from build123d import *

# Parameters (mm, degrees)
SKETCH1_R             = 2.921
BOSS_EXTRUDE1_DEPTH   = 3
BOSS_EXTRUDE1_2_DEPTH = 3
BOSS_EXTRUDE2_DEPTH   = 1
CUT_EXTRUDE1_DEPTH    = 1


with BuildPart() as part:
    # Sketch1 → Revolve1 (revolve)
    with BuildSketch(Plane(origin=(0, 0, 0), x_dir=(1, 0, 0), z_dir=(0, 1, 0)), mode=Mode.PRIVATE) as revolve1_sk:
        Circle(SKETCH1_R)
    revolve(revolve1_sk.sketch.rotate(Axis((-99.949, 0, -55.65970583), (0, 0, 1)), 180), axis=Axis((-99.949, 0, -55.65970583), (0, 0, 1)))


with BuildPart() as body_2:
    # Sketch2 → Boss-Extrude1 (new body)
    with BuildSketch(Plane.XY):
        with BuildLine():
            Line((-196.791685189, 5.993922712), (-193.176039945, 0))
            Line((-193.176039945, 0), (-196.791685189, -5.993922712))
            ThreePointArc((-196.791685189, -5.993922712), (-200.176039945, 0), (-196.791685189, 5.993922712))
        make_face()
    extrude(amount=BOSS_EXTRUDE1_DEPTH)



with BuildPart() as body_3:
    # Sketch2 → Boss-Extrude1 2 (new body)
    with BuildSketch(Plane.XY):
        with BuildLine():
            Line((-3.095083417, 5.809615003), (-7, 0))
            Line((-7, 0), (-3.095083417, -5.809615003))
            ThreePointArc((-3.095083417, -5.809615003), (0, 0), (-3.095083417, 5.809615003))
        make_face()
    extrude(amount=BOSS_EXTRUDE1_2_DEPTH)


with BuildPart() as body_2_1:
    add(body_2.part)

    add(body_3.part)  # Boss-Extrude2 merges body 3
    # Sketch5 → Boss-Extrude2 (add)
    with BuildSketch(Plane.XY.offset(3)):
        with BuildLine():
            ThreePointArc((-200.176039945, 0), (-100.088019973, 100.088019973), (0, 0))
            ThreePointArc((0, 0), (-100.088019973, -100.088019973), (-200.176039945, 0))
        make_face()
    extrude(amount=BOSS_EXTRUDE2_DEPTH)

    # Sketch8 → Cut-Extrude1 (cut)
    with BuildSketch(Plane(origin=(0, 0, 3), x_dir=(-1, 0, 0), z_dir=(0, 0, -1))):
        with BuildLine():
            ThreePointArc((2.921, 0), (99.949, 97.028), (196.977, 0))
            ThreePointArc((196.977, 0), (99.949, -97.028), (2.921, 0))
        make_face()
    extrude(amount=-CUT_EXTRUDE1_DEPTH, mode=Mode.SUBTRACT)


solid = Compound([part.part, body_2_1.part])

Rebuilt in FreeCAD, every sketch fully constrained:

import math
import FreeCAD as App
import Part
import Sketcher
Q = App.Units.Quantity

doc = App.newDocument("Part")
body = doc.addObject("PartDesign::Body", "Body")

# Sketch on XZ plane
sketch1 = doc.addObject("Sketcher::SketchObject", "Sketch")
body.addObject(sketch1)
sketch1.AttachmentSupport = (doc.XZ_Plane, [""])
sketch1.MapMode = "FlatFace"
sketch1.addGeometry(Part.Circle(App.Vector(0, 0, 0), App.Vector(0, 0, 1), 2.9), False)
sketch1.addGeometry(Part.LineSegment(App.Vector(-99.9, 0, 0), App.Vector(-99.9, 10, 0)), True)  # axis
sketch1.addConstraint([
    Sketcher.Constraint("Vertical", 1),
    Sketcher.Constraint("Coincident", 0, 3, -1, 1),
    Sketcher.Constraint("PointOnObject", 1, 1, -1),
    Sketcher.Constraint("DistanceY", 1, 1, 1, 2, Q("10 mm")),
    Sketcher.Constraint("Diameter", 0, Q("5.842 mm")),
    Sketcher.Constraint("DistanceX", 1, 1, -1, 1, Q("99.949 mm")),
])
revolution = doc.addObject("PartDesign::Revolution", "Revolution")
body.addObject(revolution)
revolution.Profile = sketch1
revolution.ReferenceAxis = (sketch1, ["Axis0"])
revolution.Angle = 360
body2 = doc.addObject("PartDesign::Body", "Body001")

# Sketch on XY plane
sketch2 = doc.addObject("Sketcher::SketchObject", "Sketch001")
body2.addObject(sketch2)
sketch2.AttachmentSupport = (doc.getObject("XY_Plane001"), [""])
sketch2.MapMode = "FlatFace"
sketch2.addGeometry([
    Part.LineSegment(App.Vector(-193, 0, 0), App.Vector(-197, 6, 0)),
    Part.ArcOfCircle(Part.Circle(App.Vector(-193, 0, 0), App.Vector(0, 0, 1), 7), math.radians(121), math.radians(239)),
    Part.LineSegment(App.Vector(-197, -6, 0), App.Vector(-193, 0, 0)),
], False)
sketch2.addConstraint([
    Sketcher.Constraint("Coincident", 0, 2, 1, 1),
    Sketcher.Constraint("Coincident", 1, 2, 2, 1),
    Sketcher.Constraint("Coincident", 2, 2, 0, 1),
    Sketcher.Constraint("Coincident", 2, 2, 1, 3),
    Sketcher.Constraint("Symmetric", 0, 2, 1, 2, -1),
    Sketcher.Constraint("Radius", 1, Q("7 mm")),
    Sketcher.Constraint("DistanceX", 1, 3, -1, 1, Q("193.17604 mm")),
    Sketcher.Constraint("DistanceX", 0, 2, -1, 1, Q("196.791685 mm")),
])
pad1 = doc.addObject("PartDesign::Pad", "Pad")
body2.addObject(pad1)
pad1.Profile = sketch2
pad1.Length = 3
body3 = doc.addObject("PartDesign::Body", "Body002")

# Sketch on XY plane
sketch3 = doc.addObject("Sketcher::SketchObject", "Sketch002")
body3.addObject(sketch3)
sketch3.AttachmentSupport = (doc.getObject("XY_Plane002"), [""])
sketch3.MapMode = "FlatFace"
sketch3.addGeometry([
    Part.LineSegment(App.Vector(-3, 6, 0), App.Vector(-7, 0, 0)),
    Part.LineSegment(App.Vector(-7, 0, 0), App.Vector(-3, -6, 0)),
    Part.ArcOfCircle(Part.Circle(App.Vector(-7, 0, 0), App.Vector(0, 0, 1), 7), math.radians(-56), math.radians(56)),
], False)
sketch3.addConstraint([
    Sketcher.Constraint("Coincident", 0, 2, 1, 1),
    Sketcher.Constraint("Coincident", 1, 2, 2, 1),
    Sketcher.Constraint("Coincident", 2, 2, 0, 1),
    Sketcher.Constraint("Coincident", 0, 2, 2, 3),
    Sketcher.Constraint("Symmetric", 1, 2, 2, 2, -1),
    Sketcher.Constraint("Radius", 2, Q("7 mm")),
    Sketcher.Constraint("DistanceX", 2, 3, -1, 1, Q("7 mm")),
    Sketcher.Constraint("DistanceY", 1, 2, 2, 2, Q("11.61923 mm")),
])
pad2 = doc.addObject("PartDesign::Pad", "Pad001")
body3.addObject(pad2)
pad2.Profile = sketch3
pad2.Length = 3
body2.AllowCompound = True
doc.recompute()

boolean = doc.addObject("PartDesign::Boolean", "Boolean")
body2.addObject(boolean)
boolean.Type = "Fuse"
boolean.addObjects([body3])

# Sketch on XY plane
sketch4 = doc.addObject("Sketcher::SketchObject", "Sketch003")
body2.addObject(sketch4)
sketch4.AttachmentSupport = (doc.getObject("XY_Plane001"), [""])
sketch4.MapMode = "FlatFace"
sketch4.AttachmentOffset = App.Placement(App.Vector(0, 0, 3), App.Rotation())
sketch4.addGeometry([
    Part.ArcOfCircle(Part.Circle(App.Vector(-100, 0, 0), App.Vector(0, 0, 1), 100), math.radians(0), math.radians(180)),
    Part.ArcOfCircle(Part.Circle(App.Vector(-100, 0, 0), App.Vector(0, 0, 1), 100), math.radians(180), math.radians(360)),
], False)
sketch4.addConstraint([
    Sketcher.Constraint("Tangent", 0, 1, 1, 2),
    Sketcher.Constraint("Coincident", 1, 1, 0, 2),
    Sketcher.Constraint("Coincident", 0, 1, -1, 1),
    Sketcher.Constraint("PointOnObject", 0, 3, -1),
    Sketcher.Constraint("PointOnObject", 1, 1, -1),
    Sketcher.Constraint("Radius", 0, Q("100.08802 mm")),
])
pad3 = doc.addObject("PartDesign::Pad", "Pad002")
body2.addObject(pad3)
pad3.Profile = sketch4
pad3.Length = 1

# Sketch on XY plane
sketch5 = doc.addObject("Sketcher::SketchObject", "Sketch004")
body2.addObject(sketch5)
sketch5.AttachmentSupport = (doc.getObject("XY_Plane001"), [""])
sketch5.MapMode = "FlatFace"
sketch5.AttachmentOffset = App.Placement(App.Vector(0, 0, 3), App.Rotation())
sketch5.addGeometry(Part.Circle(App.Vector(-100, 0, 0), App.Vector(0, 0, 1), 97), False)
sketch5.addConstraint([
    Sketcher.Constraint("PointOnObject", 0, 3, -1),
    Sketcher.Constraint("Diameter", 0, Q("194.056 mm")),
    Sketcher.Constraint("DistanceX", 0, 3, -1, 1, Q("99.949 mm")),
])
pocket1 = doc.addObject("PartDesign::Pocket", "Pocket")
body2.addObject(pocket1)
pocket1.Profile = sketch5
pocket1.Length = 1
pocket1.Reversed = True

doc.recompute()
